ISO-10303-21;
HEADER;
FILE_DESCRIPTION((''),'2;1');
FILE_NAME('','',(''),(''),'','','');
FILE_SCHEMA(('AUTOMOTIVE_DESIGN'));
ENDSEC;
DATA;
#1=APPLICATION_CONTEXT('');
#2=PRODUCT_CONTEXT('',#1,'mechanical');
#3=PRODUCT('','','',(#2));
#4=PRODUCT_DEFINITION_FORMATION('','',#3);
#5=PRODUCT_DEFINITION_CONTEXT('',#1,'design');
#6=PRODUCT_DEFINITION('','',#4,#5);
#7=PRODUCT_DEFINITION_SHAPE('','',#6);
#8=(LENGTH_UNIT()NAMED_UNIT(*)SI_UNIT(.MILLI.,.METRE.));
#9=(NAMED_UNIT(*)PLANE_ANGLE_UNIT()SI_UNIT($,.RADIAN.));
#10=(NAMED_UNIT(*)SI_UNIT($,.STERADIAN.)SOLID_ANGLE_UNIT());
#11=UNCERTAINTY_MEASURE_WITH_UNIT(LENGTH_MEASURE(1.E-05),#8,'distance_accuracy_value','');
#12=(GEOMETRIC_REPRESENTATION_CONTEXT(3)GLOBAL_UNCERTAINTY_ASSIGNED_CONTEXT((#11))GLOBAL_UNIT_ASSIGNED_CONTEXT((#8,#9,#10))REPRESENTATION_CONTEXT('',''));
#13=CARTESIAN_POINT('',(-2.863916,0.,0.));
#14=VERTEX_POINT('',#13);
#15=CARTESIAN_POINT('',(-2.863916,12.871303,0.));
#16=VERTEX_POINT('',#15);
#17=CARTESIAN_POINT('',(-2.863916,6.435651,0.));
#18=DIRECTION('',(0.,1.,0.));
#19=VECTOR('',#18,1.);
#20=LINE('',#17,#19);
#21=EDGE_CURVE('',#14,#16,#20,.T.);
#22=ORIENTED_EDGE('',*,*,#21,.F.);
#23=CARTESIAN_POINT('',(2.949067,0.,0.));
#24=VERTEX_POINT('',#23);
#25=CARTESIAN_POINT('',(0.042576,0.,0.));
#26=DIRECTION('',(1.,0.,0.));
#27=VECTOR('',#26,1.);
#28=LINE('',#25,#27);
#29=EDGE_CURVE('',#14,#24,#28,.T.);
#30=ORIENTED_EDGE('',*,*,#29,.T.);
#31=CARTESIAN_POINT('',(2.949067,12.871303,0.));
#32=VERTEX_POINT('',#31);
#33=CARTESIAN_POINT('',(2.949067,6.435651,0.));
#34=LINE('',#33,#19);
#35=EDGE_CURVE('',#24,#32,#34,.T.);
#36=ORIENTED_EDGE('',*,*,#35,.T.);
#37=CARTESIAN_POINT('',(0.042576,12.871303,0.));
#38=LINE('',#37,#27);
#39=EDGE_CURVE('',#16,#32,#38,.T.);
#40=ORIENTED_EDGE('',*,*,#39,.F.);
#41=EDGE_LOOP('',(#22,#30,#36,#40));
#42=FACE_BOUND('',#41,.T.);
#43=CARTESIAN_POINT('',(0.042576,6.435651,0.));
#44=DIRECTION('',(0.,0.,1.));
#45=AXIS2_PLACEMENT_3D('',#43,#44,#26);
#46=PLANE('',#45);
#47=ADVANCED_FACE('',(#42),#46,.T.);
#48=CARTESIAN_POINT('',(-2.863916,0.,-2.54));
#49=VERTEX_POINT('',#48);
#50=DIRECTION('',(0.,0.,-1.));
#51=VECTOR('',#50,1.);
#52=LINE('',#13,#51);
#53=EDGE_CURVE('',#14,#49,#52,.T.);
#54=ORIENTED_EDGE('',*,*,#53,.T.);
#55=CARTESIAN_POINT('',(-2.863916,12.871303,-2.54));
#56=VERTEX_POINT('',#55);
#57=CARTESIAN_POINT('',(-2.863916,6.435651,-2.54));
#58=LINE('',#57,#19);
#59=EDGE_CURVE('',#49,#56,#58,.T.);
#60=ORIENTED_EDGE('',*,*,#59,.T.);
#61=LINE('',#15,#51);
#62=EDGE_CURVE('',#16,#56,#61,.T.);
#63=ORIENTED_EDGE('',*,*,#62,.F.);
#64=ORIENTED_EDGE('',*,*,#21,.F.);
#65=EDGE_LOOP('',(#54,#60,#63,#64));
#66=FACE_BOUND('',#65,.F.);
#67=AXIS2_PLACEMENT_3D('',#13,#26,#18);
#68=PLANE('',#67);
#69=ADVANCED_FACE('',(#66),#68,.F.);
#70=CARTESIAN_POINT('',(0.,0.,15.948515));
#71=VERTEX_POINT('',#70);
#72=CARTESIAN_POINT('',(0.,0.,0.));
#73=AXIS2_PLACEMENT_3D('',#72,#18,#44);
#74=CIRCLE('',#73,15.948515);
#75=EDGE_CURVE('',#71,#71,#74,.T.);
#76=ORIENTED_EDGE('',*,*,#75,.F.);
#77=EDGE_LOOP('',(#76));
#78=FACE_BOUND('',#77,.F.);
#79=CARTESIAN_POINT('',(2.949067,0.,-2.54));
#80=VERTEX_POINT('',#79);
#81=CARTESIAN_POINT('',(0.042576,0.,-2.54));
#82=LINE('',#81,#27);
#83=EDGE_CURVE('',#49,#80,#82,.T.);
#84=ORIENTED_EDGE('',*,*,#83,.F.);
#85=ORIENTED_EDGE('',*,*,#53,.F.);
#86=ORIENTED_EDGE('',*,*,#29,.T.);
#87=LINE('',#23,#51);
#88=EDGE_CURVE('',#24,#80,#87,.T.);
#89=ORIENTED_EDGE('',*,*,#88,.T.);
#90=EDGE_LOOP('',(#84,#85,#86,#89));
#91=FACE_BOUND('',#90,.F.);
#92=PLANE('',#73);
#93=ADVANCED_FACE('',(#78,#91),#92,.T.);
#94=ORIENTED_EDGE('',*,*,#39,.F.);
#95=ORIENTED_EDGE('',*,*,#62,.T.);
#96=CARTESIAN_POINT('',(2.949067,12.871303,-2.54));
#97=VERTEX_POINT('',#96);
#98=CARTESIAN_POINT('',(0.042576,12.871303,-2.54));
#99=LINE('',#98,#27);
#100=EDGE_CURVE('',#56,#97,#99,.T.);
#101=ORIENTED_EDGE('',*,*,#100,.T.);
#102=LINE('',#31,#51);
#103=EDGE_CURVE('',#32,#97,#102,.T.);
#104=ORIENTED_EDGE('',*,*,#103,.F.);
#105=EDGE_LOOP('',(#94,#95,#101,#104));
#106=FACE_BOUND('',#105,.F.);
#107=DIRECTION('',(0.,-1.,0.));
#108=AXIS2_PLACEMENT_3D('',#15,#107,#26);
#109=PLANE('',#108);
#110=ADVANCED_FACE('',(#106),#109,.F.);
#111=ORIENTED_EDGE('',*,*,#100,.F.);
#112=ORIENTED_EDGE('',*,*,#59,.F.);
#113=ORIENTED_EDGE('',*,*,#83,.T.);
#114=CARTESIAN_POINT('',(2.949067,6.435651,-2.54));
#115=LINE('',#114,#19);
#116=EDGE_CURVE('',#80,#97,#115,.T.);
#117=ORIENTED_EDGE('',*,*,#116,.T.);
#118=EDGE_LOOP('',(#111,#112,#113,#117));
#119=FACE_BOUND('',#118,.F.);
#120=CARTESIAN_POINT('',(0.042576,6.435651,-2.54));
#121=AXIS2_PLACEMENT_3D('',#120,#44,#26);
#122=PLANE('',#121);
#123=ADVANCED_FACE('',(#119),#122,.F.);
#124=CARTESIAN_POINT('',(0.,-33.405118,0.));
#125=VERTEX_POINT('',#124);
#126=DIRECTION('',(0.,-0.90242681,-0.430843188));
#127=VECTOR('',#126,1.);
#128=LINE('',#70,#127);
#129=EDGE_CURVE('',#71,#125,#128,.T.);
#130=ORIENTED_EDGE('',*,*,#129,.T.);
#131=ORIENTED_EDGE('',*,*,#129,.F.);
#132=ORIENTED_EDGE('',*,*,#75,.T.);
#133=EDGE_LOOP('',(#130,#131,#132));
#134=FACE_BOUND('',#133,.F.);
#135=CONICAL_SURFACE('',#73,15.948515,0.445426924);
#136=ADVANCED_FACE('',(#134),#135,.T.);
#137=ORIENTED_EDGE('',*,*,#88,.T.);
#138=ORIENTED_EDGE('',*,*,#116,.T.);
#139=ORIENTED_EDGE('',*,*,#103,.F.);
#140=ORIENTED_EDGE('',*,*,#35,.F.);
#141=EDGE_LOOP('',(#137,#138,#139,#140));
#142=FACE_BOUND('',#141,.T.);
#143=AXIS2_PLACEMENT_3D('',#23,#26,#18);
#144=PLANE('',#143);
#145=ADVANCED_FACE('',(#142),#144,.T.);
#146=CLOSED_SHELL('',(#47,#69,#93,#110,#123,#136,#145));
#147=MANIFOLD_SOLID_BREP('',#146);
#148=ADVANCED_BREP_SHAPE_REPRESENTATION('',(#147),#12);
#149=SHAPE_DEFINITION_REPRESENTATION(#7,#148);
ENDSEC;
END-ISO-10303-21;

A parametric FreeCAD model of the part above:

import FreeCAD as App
import Part
import Sketcher


def add_polygon(sketch, points):
    """Adds a closed chain of lines whose ends are joined by coincident constraints."""
    first, n = sketch.GeometryCount, len(points)
    for a, b in zip(points, points[1:] + points[:1]):
        sketch.addGeometry(Part.LineSegment(App.Vector(*a, 0), App.Vector(*b, 0)), False)
    for i in range(n):
        sketch.addConstraint(Sketcher.Constraint("Coincident", first + i, 2, first + (i + 1) % n, 1))

doc = App.newDocument("Part")
params = doc.addObject("Spreadsheet::Sheet", "Params")
for row, (alias, value) in enumerate([
    ("revolution_angle", "360 deg"),
    ("pad1_length", "0.1 in"),
], start=1):
    params.set(f"A{row}", alias)
    params.set(f"B{row}", "=" + value)
    params.setAlias(f"B{row}", alias)

body = doc.addObject("PartDesign::Body", "Body")

sketch1 = doc.addObject("Sketcher::SketchObject", "Sketch")
body.addObject(sketch1)
sketch1.AttachmentSupport = (doc.YZ_Plane, [""])
sketch1.MapMode = "FlatFace"
add_polygon(sketch1, [(-33.405118, 0), (0, 0), (0, 15.948515)])
sketch1.addConstraint([
    Sketcher.Constraint("Horizontal", 0),
    Sketcher.Constraint("Vertical", 1),
    Sketcher.Constraint("Coincident", 0, 2, -1, 1),
    Sketcher.Constraint("DistanceX", 0, 1, 0, 2, 33.405118),
    Sketcher.Constraint("DistanceY", 1, 1, 1, 2, 15.948515),
])
revolution = doc.addObject("PartDesign::Revolution", "Revolution")
body.addObject(revolution)
revolution.Profile = sketch1
revolution.ReferenceAxis = (sketch1, ["H_Axis"])
revolution.setExpression("Angle", "Params.revolution_angle")

sketch2 = doc.addObject("Sketcher::SketchObject", "Sketch001")
body.addObject(sketch2)
sketch2.AttachmentSupport = (doc.XY_Plane, [""])
sketch2.MapMode = "FlatFace"
add_polygon(sketch2, [(-2.863916, 12.871303), (-2.863916, 0), (2.949067, 0), (2.949067, 12.871303)])
sketch2.addConstraint([
    Sketcher.Constraint("Vertical", 0),
    Sketcher.Constraint("Horizontal", 1),
    Sketcher.Constraint("Vertical", 2),
    Sketcher.Constraint("Horizontal", 3),
    Sketcher.Constraint("PointOnObject", 0, 2, -1),
    Sketcher.Constraint("DistanceX", 1, 1, 1, 2, 5.812983),
    Sketcher.Constraint("DistanceY", 0, 2, 0, 1, 12.871303),
    Sketcher.Constraint("DistanceX", 0, 2, -1, 1, 2.863916),
])
pad1 = doc.addObject("PartDesign::Pad", "Pad")
body.addObject(pad1)
pad1.Profile = sketch2
pad1.setExpression("Length", "Params.pad1_length")
pad1.Reversed = True

doc.recompute()
